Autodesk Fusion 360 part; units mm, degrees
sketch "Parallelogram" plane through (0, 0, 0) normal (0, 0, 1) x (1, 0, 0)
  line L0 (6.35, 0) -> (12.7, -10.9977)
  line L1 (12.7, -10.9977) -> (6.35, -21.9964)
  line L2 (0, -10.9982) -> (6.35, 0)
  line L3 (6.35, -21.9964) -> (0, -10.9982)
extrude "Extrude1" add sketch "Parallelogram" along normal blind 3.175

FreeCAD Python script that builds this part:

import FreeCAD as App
import Part
import Sketcher

V = App.Vector
Q = App.Units.Quantity


def add_polygon(sketch, points):
    """Adds a closed chain of lines whose ends are joined by coincident constraints."""
    first, n = sketch.GeometryCount, len(points)
    for a, b in zip(points, points[1:] + points[:1]):
        sketch.addGeometry(Part.LineSegment(App.Vector(*a, 0), App.Vector(*b, 0)), False)
    for i in range(n):
        sketch.addConstraint(Sketcher.Constraint("Coincident", first + i, 2, first + (i + 1) % n, 1))

doc = App.newDocument("Part")
params = doc.addObject("Spreadsheet::Sheet", "Params")
for row, (alias, value) in enumerate([
    ("sketch1_length", "0.5 in"),
    ("pad1_length", "0.125 in"),
], start=1):
    params.set(f"A{row}", alias)
    params.set(f"B{row}", "=" + value)
    params.setAlias(f"B{row}", alias)

body = doc.addObject("PartDesign::Body", "Body")

sketch1 = body.newObject("Sketcher::SketchObject", "Sketch")
sketch1.AttachmentSupport = (doc.getObject("XY_Plane"), [""])
sketch1.MapMode = "FlatFace"
add_polygon(sketch1, [(12.7, -10.9977), (6.35, 0), (0, -10.9982), (6.35, -21.9964)])
sketch1.addConstraint([
    Sketcher.Constraint("PointOnObject", 0, 2, -1),
    Sketcher.Constraint("PointOnObject", 1, 2, -2),
    Sketcher.Constraint("Parallel", 0, 2),
    Sketcher.Constraint("Parallel", 1, 3),
    Sketcher.Constraint("Vertical", 0, 2, 2, 2),
    Sketcher.Constraint("Equal", 1, 2),
    Sketcher.Constraint("Angle", 1, Q("-120.0007 deg")),
    Sketcher.Constraint("Distance", 1, Q("0.5 in")),
])
sketch1.setExpression("Constraints[11]", "Params.sketch1_length")
pad1 = body.newObject("PartDesign::Pad", "Pad")
pad1.Profile = sketch1
pad1.setExpression("Length", "Params.pad1_length")

doc.recompute()
